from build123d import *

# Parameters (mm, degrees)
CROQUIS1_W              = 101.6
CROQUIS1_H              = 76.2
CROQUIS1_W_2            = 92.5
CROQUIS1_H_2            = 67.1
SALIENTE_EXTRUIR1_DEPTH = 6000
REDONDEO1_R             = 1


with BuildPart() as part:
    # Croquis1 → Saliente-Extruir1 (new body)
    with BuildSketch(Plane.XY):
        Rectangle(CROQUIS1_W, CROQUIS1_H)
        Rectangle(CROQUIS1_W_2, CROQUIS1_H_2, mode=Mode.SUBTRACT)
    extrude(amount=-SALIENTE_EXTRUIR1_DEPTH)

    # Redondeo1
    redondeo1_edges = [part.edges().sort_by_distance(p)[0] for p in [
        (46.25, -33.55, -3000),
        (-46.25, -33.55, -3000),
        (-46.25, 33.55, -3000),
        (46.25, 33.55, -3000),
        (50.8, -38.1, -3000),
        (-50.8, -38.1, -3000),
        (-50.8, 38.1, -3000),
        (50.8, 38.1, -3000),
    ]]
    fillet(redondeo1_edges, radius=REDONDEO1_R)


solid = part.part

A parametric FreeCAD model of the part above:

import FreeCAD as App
import Part
import Sketcher

V = App.Vector


def edges_at(feature, points):
    """Names of the edges that pass closest to the given points."""
    edges = feature.Shape.Edges
    near = lambda p: min(range(len(edges)), key=lambda i: edges[i].distToShape(Part.Vertex(*p))[0])
    return sorted({f"Edge{near(p) + 1}" for p in points})

doc = App.newDocument("Part")
body = doc.addObject("PartDesign::Body", "Body")

sketch1 = doc.addObject("Sketcher::SketchObject", "Sketch")
body.addObject(sketch1)
sketch1.AttachmentSupport = (doc.XY_Plane, [""])
sketch1.MapMode = "FlatFace"
sketch1.addGeometry([
    Part.LineSegment(V(-50.8, 38.1, 0), V(-50.8, -38.1, 0)),
    Part.LineSegment(V(-50.8, -38.1, 0), V(50.8, -38.1, 0)),
    Part.LineSegment(V(50.8, -38.1, 0), V(50.8, 38.1, 0)),
    Part.LineSegment(V(50.8, 38.1, 0), V(-50.8, 38.1, 0)),
    Part.LineSegment(V(46.25, -33.55, 0), V(-46.25, -33.55, 0)),
    Part.LineSegment(V(-46.25, -33.55, 0), V(-46.25, 33.55, 0)),
    Part.LineSegment(V(-46.25, 33.55, 0), V(46.25, 33.55, 0)),
    Part.LineSegment(V(46.25, 33.55, 0), V(46.25, -33.55, 0)),
], False)
sketch1.addConstraint([
    Sketcher.Constraint("Coincident", 0, 2, 1, 1),
    Sketcher.Constraint("Coincident", 1, 2, 2, 1),
    Sketcher.Constraint("Coincident", 2, 2, 3, 1),
    Sketcher.Constraint("Coincident", 3, 2, 0, 1),
    Sketcher.Constraint("Coincident", 4, 2, 5, 1),
    Sketcher.Constraint("Coincident", 5, 2, 6, 1),
    Sketcher.Constraint("Coincident", 6, 2, 7, 1),
    Sketcher.Constraint("Coincident", 7, 2, 4, 1),
    Sketcher.Constraint("Vertical", 0),
    Sketcher.Constraint("Horizontal", 1),
    Sketcher.Constraint("Vertical", 2),
    Sketcher.Constraint("Horizontal", 3),
    Sketcher.Constraint("Horizontal", 4),
    Sketcher.Constraint("Vertical", 5),
    Sketcher.Constraint("Horizontal", 6),
    Sketcher.Constraint("Vertical", 7),
    Sketcher.Constraint("Symmetric", 0, 2, 2, 2, -1, 1),
    Sketcher.Constraint("Symmetric", 4, 2, 6, 2, -1, 1),
    Sketcher.Constraint("DistanceX", 1, 1, 1, 2, 101.6),
    Sketcher.Constraint("DistanceX", 4, 2, 4, 1, 92.5),
    Sketcher.Constraint("DistanceY", 0, 2, 0, 1, 76.2),
    Sketcher.Constraint("DistanceY", 5, 1, 5, 2, 67.1),
])
pad1 = doc.addObject("PartDesign::Pad", "Pad")
body.addObject(pad1)
pad1.Profile = sketch1
pad1.Length = 6000
pad1.Reversed = True
doc.recompute()

fillet = doc.addObject("PartDesign::Fillet", "Fillet")
body.addObject(fillet)
fillet.Base = (pad1, edges_at(pad1, [
    (46.25, -33.55, -3000),
    (-46.25, -33.55, -3000),
    (-46.25, 33.55, -3000),
    (46.25, 33.55, -3000),
    (50.8, -38.1, -3000),
    (-50.8, -38.1, -3000),
    (-50.8, 38.1, -3000),
    (50.8, 38.1, -3000),
]))
fillet.Radius = 1

doc.recompute()
